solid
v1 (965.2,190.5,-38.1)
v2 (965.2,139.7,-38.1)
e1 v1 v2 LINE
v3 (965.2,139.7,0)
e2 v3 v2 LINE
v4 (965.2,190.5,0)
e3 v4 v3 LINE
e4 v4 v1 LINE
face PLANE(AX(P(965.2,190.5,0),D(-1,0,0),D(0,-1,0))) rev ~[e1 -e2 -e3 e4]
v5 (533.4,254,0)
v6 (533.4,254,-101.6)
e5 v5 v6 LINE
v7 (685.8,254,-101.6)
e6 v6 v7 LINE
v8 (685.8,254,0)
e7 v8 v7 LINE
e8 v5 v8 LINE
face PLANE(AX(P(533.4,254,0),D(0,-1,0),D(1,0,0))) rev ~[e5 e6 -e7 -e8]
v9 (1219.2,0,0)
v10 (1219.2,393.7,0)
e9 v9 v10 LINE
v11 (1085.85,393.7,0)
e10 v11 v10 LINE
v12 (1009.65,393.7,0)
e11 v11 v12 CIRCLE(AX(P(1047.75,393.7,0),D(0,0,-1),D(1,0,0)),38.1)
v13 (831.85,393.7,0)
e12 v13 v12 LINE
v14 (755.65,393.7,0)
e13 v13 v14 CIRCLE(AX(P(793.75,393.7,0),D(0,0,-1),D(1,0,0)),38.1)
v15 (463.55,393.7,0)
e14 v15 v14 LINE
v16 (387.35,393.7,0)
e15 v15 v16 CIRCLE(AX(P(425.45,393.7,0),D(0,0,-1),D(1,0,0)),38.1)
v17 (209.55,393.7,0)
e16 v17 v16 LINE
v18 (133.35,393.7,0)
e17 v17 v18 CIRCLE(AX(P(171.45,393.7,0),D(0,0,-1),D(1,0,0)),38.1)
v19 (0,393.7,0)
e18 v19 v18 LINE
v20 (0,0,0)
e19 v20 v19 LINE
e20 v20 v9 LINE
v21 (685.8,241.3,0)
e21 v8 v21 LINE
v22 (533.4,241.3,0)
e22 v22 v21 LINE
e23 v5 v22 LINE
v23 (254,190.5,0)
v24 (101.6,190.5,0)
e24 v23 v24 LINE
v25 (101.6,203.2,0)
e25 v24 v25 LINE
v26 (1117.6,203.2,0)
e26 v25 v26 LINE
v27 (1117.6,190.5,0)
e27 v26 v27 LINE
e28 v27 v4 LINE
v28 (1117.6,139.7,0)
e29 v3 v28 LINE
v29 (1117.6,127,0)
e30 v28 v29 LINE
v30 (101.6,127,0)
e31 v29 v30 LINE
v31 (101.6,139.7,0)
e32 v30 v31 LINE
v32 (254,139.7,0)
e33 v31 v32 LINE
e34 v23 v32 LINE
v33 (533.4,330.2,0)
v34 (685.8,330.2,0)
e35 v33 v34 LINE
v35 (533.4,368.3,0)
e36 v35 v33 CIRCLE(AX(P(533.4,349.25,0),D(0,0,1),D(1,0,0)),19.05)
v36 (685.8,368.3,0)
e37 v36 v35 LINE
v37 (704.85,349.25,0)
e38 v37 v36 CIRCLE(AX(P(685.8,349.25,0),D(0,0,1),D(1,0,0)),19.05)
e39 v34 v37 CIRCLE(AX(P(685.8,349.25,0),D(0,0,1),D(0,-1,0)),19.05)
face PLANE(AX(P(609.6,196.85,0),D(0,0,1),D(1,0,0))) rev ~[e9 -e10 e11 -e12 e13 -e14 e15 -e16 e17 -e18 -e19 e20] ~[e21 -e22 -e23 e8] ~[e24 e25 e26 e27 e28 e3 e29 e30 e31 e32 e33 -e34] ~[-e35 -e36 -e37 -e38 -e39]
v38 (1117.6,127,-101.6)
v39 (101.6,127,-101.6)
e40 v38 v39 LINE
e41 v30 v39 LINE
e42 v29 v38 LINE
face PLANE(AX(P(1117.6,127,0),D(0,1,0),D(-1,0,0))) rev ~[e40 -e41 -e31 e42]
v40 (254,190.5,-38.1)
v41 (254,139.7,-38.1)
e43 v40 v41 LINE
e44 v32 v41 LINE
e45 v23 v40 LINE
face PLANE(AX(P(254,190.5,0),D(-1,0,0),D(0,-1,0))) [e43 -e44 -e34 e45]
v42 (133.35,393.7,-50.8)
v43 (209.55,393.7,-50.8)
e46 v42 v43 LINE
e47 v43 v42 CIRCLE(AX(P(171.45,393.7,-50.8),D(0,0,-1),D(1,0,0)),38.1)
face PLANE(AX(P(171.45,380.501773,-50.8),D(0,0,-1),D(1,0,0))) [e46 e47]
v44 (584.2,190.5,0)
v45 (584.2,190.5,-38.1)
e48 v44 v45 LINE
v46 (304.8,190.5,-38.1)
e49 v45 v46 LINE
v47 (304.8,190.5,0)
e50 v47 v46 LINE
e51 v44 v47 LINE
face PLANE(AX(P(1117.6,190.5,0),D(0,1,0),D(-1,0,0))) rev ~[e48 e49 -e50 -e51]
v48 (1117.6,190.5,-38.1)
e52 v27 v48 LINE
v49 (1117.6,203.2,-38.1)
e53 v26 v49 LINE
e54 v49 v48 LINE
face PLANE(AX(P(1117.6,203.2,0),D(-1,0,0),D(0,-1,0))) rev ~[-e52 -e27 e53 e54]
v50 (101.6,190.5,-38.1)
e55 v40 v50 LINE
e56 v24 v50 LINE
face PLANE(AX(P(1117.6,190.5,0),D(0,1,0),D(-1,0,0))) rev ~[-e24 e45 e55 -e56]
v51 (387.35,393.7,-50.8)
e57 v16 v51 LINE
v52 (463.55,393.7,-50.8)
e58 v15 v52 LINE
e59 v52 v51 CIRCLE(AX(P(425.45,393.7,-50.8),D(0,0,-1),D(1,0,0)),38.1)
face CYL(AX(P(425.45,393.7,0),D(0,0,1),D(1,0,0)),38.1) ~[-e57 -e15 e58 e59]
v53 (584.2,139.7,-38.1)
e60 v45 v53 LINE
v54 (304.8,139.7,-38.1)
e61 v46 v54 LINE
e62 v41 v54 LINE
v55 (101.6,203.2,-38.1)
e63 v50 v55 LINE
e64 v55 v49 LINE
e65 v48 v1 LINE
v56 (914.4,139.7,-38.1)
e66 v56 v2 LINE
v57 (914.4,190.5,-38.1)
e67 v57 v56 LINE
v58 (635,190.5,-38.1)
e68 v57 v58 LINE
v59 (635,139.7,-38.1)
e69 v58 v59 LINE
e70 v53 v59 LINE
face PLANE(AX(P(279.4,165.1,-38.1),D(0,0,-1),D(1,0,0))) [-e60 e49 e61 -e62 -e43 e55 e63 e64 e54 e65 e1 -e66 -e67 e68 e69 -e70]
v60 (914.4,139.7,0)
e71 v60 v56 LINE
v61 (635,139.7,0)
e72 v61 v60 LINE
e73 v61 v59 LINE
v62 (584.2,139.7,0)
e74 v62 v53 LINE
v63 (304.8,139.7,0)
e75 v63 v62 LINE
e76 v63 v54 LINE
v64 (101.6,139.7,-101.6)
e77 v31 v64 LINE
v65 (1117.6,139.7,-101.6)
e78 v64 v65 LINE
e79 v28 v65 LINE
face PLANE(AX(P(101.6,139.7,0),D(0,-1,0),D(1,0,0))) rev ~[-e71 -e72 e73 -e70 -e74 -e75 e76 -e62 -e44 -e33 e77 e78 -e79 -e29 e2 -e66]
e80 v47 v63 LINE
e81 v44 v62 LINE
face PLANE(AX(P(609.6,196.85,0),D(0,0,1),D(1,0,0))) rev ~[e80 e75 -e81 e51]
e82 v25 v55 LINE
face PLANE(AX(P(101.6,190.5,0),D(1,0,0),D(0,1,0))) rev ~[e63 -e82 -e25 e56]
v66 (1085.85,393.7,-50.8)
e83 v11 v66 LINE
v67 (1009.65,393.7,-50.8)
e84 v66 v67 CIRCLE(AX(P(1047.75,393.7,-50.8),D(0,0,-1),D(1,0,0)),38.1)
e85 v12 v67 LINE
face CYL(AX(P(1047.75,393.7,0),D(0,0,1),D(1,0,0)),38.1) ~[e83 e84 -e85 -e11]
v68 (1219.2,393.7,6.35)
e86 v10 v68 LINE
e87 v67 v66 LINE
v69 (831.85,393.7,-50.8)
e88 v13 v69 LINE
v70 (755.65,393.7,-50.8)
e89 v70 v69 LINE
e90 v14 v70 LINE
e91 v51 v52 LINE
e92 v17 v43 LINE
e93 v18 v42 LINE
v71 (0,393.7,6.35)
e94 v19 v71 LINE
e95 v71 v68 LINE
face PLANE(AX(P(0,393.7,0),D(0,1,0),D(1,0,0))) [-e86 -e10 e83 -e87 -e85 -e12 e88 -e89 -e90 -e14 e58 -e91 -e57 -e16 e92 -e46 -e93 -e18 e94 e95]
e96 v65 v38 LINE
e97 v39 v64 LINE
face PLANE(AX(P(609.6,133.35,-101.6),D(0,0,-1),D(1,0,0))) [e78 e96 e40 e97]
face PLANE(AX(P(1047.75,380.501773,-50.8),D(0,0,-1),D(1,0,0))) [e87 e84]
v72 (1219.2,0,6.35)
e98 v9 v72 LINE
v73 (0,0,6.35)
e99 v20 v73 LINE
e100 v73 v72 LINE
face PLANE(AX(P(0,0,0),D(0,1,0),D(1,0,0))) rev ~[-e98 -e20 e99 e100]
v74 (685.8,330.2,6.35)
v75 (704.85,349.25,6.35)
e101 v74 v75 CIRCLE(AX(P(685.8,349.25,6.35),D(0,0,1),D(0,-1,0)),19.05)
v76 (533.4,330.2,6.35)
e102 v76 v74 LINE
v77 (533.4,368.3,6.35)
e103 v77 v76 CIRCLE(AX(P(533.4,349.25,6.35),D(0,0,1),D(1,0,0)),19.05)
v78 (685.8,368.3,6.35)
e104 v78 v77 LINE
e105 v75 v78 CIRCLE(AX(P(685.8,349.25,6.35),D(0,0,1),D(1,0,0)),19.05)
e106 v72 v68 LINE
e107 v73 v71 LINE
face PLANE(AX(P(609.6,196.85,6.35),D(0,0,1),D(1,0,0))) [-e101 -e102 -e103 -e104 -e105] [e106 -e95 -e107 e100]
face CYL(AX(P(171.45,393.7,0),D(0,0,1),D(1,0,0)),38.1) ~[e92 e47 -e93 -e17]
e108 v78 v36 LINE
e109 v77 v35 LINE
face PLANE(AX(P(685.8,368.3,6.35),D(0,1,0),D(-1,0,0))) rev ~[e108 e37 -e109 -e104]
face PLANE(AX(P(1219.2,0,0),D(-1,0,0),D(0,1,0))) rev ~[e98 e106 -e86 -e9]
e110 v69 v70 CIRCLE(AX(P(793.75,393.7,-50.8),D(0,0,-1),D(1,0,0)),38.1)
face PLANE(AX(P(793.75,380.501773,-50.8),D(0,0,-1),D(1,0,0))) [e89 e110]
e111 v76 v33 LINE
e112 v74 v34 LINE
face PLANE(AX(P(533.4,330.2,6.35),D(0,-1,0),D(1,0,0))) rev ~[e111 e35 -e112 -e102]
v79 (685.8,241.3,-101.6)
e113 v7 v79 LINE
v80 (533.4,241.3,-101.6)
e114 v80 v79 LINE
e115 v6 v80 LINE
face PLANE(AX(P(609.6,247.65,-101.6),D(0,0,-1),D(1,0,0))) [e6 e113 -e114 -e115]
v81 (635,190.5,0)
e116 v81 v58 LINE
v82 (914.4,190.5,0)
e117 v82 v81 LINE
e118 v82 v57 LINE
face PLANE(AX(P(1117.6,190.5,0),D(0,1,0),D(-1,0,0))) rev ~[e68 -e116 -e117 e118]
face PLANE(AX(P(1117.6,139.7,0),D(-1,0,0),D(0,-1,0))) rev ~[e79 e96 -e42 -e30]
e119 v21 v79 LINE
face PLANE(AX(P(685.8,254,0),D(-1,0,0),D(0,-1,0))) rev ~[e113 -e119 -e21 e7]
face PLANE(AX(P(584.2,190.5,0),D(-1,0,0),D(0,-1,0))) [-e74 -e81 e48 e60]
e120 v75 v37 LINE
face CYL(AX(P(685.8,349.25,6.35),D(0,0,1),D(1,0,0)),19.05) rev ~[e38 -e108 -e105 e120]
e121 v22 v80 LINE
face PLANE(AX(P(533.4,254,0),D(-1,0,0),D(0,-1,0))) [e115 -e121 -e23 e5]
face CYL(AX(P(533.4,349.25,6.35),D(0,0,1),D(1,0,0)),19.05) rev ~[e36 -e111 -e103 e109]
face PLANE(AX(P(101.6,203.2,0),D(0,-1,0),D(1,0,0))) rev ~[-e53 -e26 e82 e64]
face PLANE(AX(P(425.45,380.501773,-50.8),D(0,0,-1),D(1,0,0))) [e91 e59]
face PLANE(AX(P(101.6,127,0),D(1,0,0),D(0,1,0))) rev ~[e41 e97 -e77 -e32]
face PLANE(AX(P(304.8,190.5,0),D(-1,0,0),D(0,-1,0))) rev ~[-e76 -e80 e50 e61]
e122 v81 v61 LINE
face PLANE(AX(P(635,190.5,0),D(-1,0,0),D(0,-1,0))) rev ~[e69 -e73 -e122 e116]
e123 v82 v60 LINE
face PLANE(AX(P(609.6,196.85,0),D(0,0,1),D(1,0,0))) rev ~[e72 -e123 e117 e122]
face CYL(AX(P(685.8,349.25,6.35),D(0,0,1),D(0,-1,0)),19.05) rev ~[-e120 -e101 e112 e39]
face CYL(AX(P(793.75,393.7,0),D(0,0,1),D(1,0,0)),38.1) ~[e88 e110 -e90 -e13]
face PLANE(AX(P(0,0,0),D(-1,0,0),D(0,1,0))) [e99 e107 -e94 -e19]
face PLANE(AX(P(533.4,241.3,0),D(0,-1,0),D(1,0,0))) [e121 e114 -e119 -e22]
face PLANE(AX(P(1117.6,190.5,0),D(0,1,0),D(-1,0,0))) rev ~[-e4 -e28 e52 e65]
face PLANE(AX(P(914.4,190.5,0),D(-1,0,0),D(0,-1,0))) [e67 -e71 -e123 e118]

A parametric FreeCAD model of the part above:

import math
import FreeCAD as App
import Part
import Sketcher

V = App.Vector
Q = App.Units.Quantity


def add_polygon(sketch, points):
    """Adds a closed chain of lines whose ends are joined by coincident constraints."""
    first, n = sketch.GeometryCount, len(points)
    for a, b in zip(points, points[1:] + points[:1]):
        sketch.addGeometry(Part.LineSegment(App.Vector(*a, 0), App.Vector(*b, 0)), False)
    for i in range(n):
        sketch.addConstraint(Sketcher.Constraint("Coincident", first + i, 2, first + (i + 1) % n, 1))

doc = App.newDocument("Part")
body = doc.addObject("PartDesign::Body", "Body")

# Sketch on XY plane
sketch1 = body.newObject("Sketcher::SketchObject", "Sketch")
sketch1.AttachmentSupport = (doc.getObject("XY_Plane"), [""])
sketch1.MapMode = "FlatFace"
add_polygon(sketch1, [(0, 394), (0, 0), (1219, 0), (1219, 394)])  # lines 0-3
sketch1.addConstraint([
    Sketcher.Constraint("Vertical", 0),
    Sketcher.Constraint("Horizontal", 1),
    Sketcher.Constraint("Vertical", 2),
    Sketcher.Constraint("Horizontal", 3),
    Sketcher.Constraint("Coincident", 0, 2, -1, 1),
    Sketcher.Constraint("DistanceX", 1, 1, 1, 2, Q("48 in")),
    Sketcher.Constraint("DistanceY", 0, 2, 0, 1, Q("15.5 in")),
])
pad1 = body.newObject("PartDesign::Pad", "Pad")
pad1.Profile = sketch1
pad1.Length = Q("0.25 in")

# Sketch on XY plane
sketch2 = body.newObject("Sketcher::SketchObject", "Sketch001")
sketch2.AttachmentSupport = (doc.getObject("XY_Plane"), [""])
sketch2.MapMode = "FlatFace"
sketch2.AttachmentOffset = App.Placement(V(0, 0, 0.25 * 25.4), App.Rotation())
sketch2.addGeometry([
    Part.ArcOfCircle(Part.Circle(V(533, 349, 0), V(0, 0, 1), 19), math.radians(90), math.radians(270)),  # 0
    Part.LineSegment(V(533, 330, 0), V(686, 330, 0)),  # 1
    Part.ArcOfCircle(Part.Circle(V(686, 349, 0), V(0, 0, 1), 19), math.radians(-90), math.radians(0)),  # 2
    Part.ArcOfCircle(Part.Circle(V(686, 349, 0), V(0, 0, 1), 19), math.radians(0), math.radians(90)),  # 3
    Part.LineSegment(V(686, 368, 0), V(533, 368, 0)),  # 4
], False)
sketch2.addConstraint([
    Sketcher.Constraint("Tangent", 0, 2, 1, 1),
    Sketcher.Constraint("Tangent", 1, 2, 2, 1),
    Sketcher.Constraint("Tangent", 2, 2, 3, 1),
    Sketcher.Constraint("Tangent", 3, 2, 4, 1),
    Sketcher.Constraint("Tangent", 4, 2, 0, 1),
    Sketcher.Constraint("Horizontal", 1),
    Sketcher.Constraint("Horizontal", 4),
    Sketcher.Constraint("Equal", 0, 2),
    Sketcher.Constraint("Horizontal", 3, 3, 2, 2),
    Sketcher.Constraint("DistanceX", 1, 1, 1, 2, Q("6 in")),
    Sketcher.Constraint("Radius", 0, Q("0.75 in")),
    Sketcher.Constraint("DistanceX", -1, 1, 0, 3, Q("21 in")),
    Sketcher.Constraint("DistanceY", -1, 1, 0, 2, Q("13 in")),
])
pocket1 = body.newObject("PartDesign::Pocket", "Pocket")
pocket1.Profile = sketch2
pocket1.Type = "ThroughAll"

# Sketch on XY plane
sketch3 = body.newObject("Sketcher::SketchObject", "Sketch002")
sketch3.AttachmentSupport = (doc.getObject("XY_Plane"), [""])
sketch3.MapMode = "FlatFace"
add_polygon(sketch3, [(533, 241), (533, 254), (686, 254), (686, 241)])  # lines 0-3
sketch3.addConstraint([
    Sketcher.Constraint("Vertical", 0),
    Sketcher.Constraint("Horizontal", 1),
    Sketcher.Constraint("Vertical", 2),
    Sketcher.Constraint("Horizontal", 3),
    Sketcher.Constraint("DistanceX", 1, 1, 1, 2, Q("6 in")),
    Sketcher.Constraint("DistanceY", 0, 1, 0, 2, Q("0.5 in")),
    Sketcher.Constraint("DistanceX", -1, 1, 0, 2, Q("21 in")),
    Sketcher.Constraint("DistanceY", -1, 1, 0, 2, Q("10 in")),
])
pad2 = body.newObject("PartDesign::Pad", "Pad001")
pad2.Profile = sketch3
pad2.Length = Q("4 in")
pad2.Reversed = True

# Sketch on XY plane
sketch4 = body.newObject("Sketcher::SketchObject", "Sketch003")
sketch4.AttachmentSupport = (doc.getObject("XY_Plane"), [""])
sketch4.MapMode = "FlatFace"
sketch4.addGeometry([
    Part.LineSegment(V(133, 394, 0), V(210, 394, 0)),  # 0
    Part.ArcOfCircle(Part.Circle(V(171, 394, 0), V(0, 0, 1), 38), math.radians(180), math.radians(360)),  # 1
    Part.LineSegment(V(387, 394, 0), V(464, 394, 0)),  # 2
    Part.ArcOfCircle(Part.Circle(V(425, 394, 0), V(0, 0, 1), 38), math.radians(180), math.radians(360)),  # 3
    Part.ArcOfCircle(Part.Circle(V(794, 394, 0), V(0, 0, 1), 38), math.radians(180), math.radians(360)),  # 4
    Part.LineSegment(V(756, 394, 0), V(832, 394, 0)),  # 5
    Part.ArcOfCircle(Part.Circle(V(1048, 394, 0), V(0, 0, 1), 38), math.radians(180), math.radians(360)),  # 6
    Part.LineSegment(V(1010, 394, 0), V(1086, 394, 0)),  # 7
], False)
sketch4.addConstraint([
    Sketcher.Constraint("Coincident", 0, 1, 1, 1),
    Sketcher.Constraint("Coincident", 1, 2, 0, 2),
    Sketcher.Constraint("Coincident", 2, 1, 3, 1),
    Sketcher.Constraint("Coincident", 3, 2, 2, 2),
    Sketcher.Constraint("Coincident", 4, 1, 5, 1),
    Sketcher.Constraint("Coincident", 5, 2, 4, 2),
    Sketcher.Constraint("Coincident", 6, 1, 7, 1),
    Sketcher.Constraint("Coincident", 7, 2, 6, 2),
    Sketcher.Constraint("Horizontal", 0),
    Sketcher.Constraint("Horizontal", 2),
    Sketcher.Constraint("Horizontal", 5),
    Sketcher.Constraint("Horizontal", 7),
    Sketcher.Constraint("Equal", 1, 3),
    Sketcher.Constraint("Equal", 3, 4),
    Sketcher.Constraint("Equal", 4, 6),
    Sketcher.Constraint("Horizontal", 1, 3, 3, 3),
    Sketcher.Constraint("Horizontal", 3, 3, 4, 3),
    Sketcher.Constraint("Horizontal", 4, 3, 6, 3),
    Sketcher.Constraint("Horizontal", 6, 3, 0, 1),
    Sketcher.Constraint("Horizontal", 1, 2, 2, 1),
    Sketcher.Constraint("Horizontal", 3, 2, 4, 1),
    Sketcher.Constraint("Horizontal", 5, 2, 6, 1),
    Sketcher.Constraint("Radius", 1, Q("1.5 in")),
    Sketcher.Constraint("DistanceX", 1, 3, 3, 3, Q("10 in")),
    Sketcher.Constraint("DistanceX", 4, 3, 6, 3, Q("10 in")),
    Sketcher.Constraint("DistanceX", 0, 1, 4, 3, Q("26 in")),
    Sketcher.Constraint("DistanceY", -1, 1, 1, 3, Q("15.5 in")),
    Sketcher.Constraint("DistanceX", -1, 1, 1, 3, Q("6.75 in")),
])
pad3 = body.newObject("PartDesign::Pad", "Pad002")
pad3.Profile = sketch4
pad3.Length = Q("2 in")
pad3.Reversed = True

# Sketch on XY plane
sketch5 = body.newObject("Sketcher::SketchObject", "Sketch004")
sketch5.AttachmentSupport = (doc.getObject("XY_Plane"), [""])
sketch5.MapMode = "FlatFace"
add_polygon(sketch5, [(102, 190), (102, 203), (1118, 203), (1118, 190)])  # lines 0-3
sketch5.addConstraint([
    Sketcher.Constraint("Vertical", 0),
    Sketcher.Constraint("Horizontal", 1),
    Sketcher.Constraint("Vertical", 2),
    Sketcher.Constraint("Horizontal", 3),
    Sketcher.Constraint("DistanceX", 1, 1, 1, 2, Q("40 in")),
    Sketcher.Constraint("DistanceY", 0, 1, 0, 2, Q("0.5 in")),
    Sketcher.Constraint("DistanceX", -1, 1, 0, 2, Q("4 in")),
    Sketcher.Constraint("DistanceY", -1, 1, 0, 2, Q("8 in")),
])
pad4 = body.newObject("PartDesign::Pad", "Pad003")
pad4.Profile = sketch5
pad4.Length = Q("1.5 in")
pad4.Reversed = True

# Sketch on XY plane
sketch6 = body.newObject("Sketcher::SketchObject", "Sketch005")
sketch6.AttachmentSupport = (doc.getObject("XY_Plane"), [""])
sketch6.MapMode = "FlatFace"
add_polygon(sketch6, [(102, 140), (1118, 140), (1118, 127), (102, 127)])  # lines 0-3
sketch6.addConstraint([
    Sketcher.Constraint("Horizontal", 0),
    Sketcher.Constraint("Vertical", 1),
    Sketcher.Constraint("Horizontal", 2),
    Sketcher.Constraint("Vertical", 3),
    Sketcher.Constraint("DistanceX", 0, 1, 0, 2, Q("40 in")),
    Sketcher.Constraint("DistanceY", 1, 2, 1, 1, Q("0.5 in")),
    Sketcher.Constraint("DistanceX", -1, 1, 0, 2, Q("44 in")),
    Sketcher.Constraint("DistanceY", -1, 1, 1, 2, Q("5 in")),
])
pad5 = body.newObject("PartDesign::Pad", "Pad004")
pad5.Profile = sketch6
pad5.Length = Q("4 in")
pad5.Reversed = True

# Sketch on XY plane
sketch7 = body.newObject("Sketcher::SketchObject", "Sketch006")
sketch7.AttachmentSupport = (doc.getObject("XY_Plane"), [""])
sketch7.MapMode = "FlatFace"
add_polygon(sketch7, [(254, 140), (254, 190), (305, 190), (305, 140)])  # lines 0-3
add_polygon(sketch7, [(584, 140), (584, 190), (635, 190), (635, 140)])  # lines 4-7
add_polygon(sketch7, [(914, 140), (914, 190), (965, 190), (965, 140)])  # lines 8-11
sketch7.addConstraint([
    Sketcher.Constraint("Vertical", 0),
    Sketcher.Constraint("Horizontal", 1),
    Sketcher.Constraint("Vertical", 2),
    Sketcher.Constraint("Horizontal", 3),
    Sketcher.Constraint("Vertical", 4),
    Sketcher.Constraint("Horizontal", 5),
    Sketcher.Constraint("Vertical", 6),
    Sketcher.Constraint("Horizontal", 7),
    Sketcher.Constraint("Vertical", 8),
    Sketcher.Constraint("Horizontal", 9),
    Sketcher.Constraint("Vertical", 10),
    Sketcher.Constraint("Horizontal", 11),
    Sketcher.Constraint("Horizontal", 1, 2, 4, 2),
    Sketcher.Constraint("Horizontal", 3, 2, 6, 2),
    Sketcher.Constraint("Horizontal", 5, 2, 8, 2),
    Sketcher.Constraint("Horizontal", 7, 2, 10, 2),
    Sketcher.Constraint("Equal", 3, 5),
    Sketcher.Constraint("Equal", 7, 9),
    Sketcher.Constraint("Equal", 11, 0),
    Sketcher.Constraint("DistanceX", 1, 1, 1, 2, Q("2 in")),
    Sketcher.Constraint("DistanceX", -1, 1, 0, 2, Q("10 in")),
    Sketcher.Constraint("DistanceX", -1, 1, 4, 2, Q("23 in")),
    Sketcher.Constraint("DistanceX", -1, 1, 8, 2, Q("36 in")),
    Sketcher.Constraint("DistanceY", -1, 1, 0, 2, Q("7.5 in")),
])
pad6 = body.newObject("PartDesign::Pad", "Pad005")
pad6.Profile = sketch7
pad6.Length = Q("1.5 in")
pad6.Reversed = True

doc.recompute()
